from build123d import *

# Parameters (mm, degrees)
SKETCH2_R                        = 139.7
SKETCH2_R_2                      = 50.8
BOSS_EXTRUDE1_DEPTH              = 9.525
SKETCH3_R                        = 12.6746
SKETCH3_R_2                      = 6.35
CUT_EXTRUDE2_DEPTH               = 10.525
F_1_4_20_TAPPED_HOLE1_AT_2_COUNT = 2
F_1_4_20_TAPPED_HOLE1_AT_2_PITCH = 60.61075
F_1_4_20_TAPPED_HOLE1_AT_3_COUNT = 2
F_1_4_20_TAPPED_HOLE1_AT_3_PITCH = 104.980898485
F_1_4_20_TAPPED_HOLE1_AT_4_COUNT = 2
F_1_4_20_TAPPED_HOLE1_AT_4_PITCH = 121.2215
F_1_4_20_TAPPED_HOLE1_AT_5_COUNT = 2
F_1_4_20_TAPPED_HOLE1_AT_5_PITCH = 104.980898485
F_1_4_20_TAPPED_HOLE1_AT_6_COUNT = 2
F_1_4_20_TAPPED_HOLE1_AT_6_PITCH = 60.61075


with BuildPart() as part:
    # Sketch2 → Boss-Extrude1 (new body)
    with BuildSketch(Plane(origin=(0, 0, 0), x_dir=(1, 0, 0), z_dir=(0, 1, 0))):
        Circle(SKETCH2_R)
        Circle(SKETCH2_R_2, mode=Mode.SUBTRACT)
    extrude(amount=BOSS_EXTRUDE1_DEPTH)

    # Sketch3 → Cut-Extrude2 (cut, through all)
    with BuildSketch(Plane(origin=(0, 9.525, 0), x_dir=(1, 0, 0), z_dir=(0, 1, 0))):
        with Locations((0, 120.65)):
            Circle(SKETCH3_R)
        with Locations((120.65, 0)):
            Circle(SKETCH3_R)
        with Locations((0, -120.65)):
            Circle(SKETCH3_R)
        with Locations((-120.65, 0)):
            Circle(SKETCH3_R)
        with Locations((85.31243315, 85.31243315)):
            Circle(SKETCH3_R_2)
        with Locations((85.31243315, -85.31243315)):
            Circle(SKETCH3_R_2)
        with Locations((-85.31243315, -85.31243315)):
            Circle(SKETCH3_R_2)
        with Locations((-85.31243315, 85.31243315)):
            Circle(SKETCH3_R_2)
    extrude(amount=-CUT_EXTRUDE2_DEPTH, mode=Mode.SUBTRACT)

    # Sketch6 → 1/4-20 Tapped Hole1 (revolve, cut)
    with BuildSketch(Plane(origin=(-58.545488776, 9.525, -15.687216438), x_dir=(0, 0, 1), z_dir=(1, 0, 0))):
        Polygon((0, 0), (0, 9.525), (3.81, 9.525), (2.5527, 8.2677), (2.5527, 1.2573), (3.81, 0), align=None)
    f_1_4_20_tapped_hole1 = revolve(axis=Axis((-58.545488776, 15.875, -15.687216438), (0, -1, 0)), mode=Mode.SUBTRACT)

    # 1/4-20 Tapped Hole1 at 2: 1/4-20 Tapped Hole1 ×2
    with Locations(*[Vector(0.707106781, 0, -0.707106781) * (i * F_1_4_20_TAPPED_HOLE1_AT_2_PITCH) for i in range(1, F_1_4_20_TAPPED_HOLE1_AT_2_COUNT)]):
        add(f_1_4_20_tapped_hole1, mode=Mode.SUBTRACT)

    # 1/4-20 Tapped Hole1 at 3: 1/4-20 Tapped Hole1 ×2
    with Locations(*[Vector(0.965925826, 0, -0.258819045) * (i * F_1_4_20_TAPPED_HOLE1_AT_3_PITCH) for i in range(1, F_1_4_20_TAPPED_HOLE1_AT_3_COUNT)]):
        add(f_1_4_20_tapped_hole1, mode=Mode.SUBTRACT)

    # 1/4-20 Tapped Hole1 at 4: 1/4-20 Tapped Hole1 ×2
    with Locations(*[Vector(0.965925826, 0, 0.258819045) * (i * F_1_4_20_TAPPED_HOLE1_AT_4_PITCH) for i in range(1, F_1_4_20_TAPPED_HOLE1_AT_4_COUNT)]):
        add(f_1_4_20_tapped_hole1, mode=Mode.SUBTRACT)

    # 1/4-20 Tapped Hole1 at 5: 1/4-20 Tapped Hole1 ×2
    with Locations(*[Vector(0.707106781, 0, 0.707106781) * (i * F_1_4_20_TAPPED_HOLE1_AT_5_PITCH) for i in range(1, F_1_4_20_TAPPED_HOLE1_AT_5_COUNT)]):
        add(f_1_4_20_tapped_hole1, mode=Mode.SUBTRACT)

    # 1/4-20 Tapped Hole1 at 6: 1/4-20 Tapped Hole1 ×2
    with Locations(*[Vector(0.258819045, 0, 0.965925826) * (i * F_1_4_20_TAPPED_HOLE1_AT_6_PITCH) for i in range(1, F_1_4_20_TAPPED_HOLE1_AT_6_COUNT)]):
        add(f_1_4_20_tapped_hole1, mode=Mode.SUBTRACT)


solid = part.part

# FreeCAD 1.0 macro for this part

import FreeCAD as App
import Part
import Sketcher

V = App.Vector
Q = App.Units.Quantity


def add_polygon(sketch, points):
    """Adds a closed chain of lines whose ends are joined by coincident constraints."""
    first, n = sketch.GeometryCount, len(points)
    for a, b in zip(points, points[1:] + points[:1]):
        sketch.addGeometry(Part.LineSegment(App.Vector(*a, 0), App.Vector(*b, 0)), False)
    for i in range(n):
        sketch.addConstraint(Sketcher.Constraint("Coincident", first + i, 2, first + (i + 1) % n, 1))

doc = App.newDocument("Part")
body = doc.addObject("PartDesign::Body", "Body")

# Sketch on XZ plane
sketch1 = body.newObject("Sketcher::SketchObject", "Sketch")
sketch1.AttachmentSupport = (doc.getObject("XZ_Plane"), [""])
sketch1.MapMode = "FlatFace"
sketch1.addGeometry(Part.Circle(V(0, 0, 0), V(0, 0, 1), 140), False)
sketch1.addGeometry(Part.Circle(V(0, 0, 0), V(0, 0, 1), 51), False)
sketch1.addConstraint(Sketcher.Constraint("Coincident", 0, 3, -1, 1))
sketch1.addConstraint(Sketcher.Constraint("Coincident", 1, 3, -1, 1))
sketch1.addConstraint(Sketcher.Constraint("Diameter", 0, Q("11 in")))
sketch1.addConstraint(Sketcher.Constraint("Diameter", 1, Q("4 in")))
pad1 = body.newObject("PartDesign::Pad", "Pad")
pad1.Profile = sketch1
pad1.Length = Q("0.375 in")
pad1.Reversed = True

# Sketch on XZ plane
sketch2 = body.newObject("Sketcher::SketchObject", "Sketch001")
sketch2.AttachmentSupport = (doc.getObject("XZ_Plane"), [""])
sketch2.MapMode = "FlatFace"
sketch2.AttachmentOffset = App.Placement(V(0, 0, -0.375 * 25.4), App.Rotation())
sketch2.addGeometry(Part.Circle(V(0, -121, 0), V(0, 0, 1), 13), False)
sketch2.addGeometry(Part.Circle(V(121, 0, 0), V(0, 0, 1), 13), False)
sketch2.addGeometry(Part.Circle(V(0, 121, 0), V(0, 0, 1), 13), False)
sketch2.addGeometry(Part.Circle(V(-121, 0, 0), V(0, 0, 1), 13), False)
sketch2.addGeometry(Part.Circle(V(85, -85, 0), V(0, 0, 1), 6), False)
sketch2.addGeometry(Part.Circle(V(85, 85, 0), V(0, 0, 1), 6), False)
sketch2.addGeometry(Part.Circle(V(-85, 85, 0), V(0, 0, 1), 6), False)
sketch2.addGeometry(Part.Circle(V(-85, -85, 0), V(0, 0, 1), 6), False)
sketch2.addConstraint(Sketcher.Constraint("Equal", 0, 1))
sketch2.addConstraint(Sketcher.Constraint("Equal", 1, 2))
sketch2.addConstraint(Sketcher.Constraint("Equal", 2, 3))
sketch2.addConstraint(Sketcher.Constraint("Equal", 4, 5))
sketch2.addConstraint(Sketcher.Constraint("Equal", 5, 6))
sketch2.addConstraint(Sketcher.Constraint("Equal", 6, 7))
sketch2.addConstraint(Sketcher.Constraint("Symmetric", 0, 3, 2, 3, -1, 1))
sketch2.addConstraint(Sketcher.Constraint("Symmetric", 1, 3, 3, 3, -1, 1))
sketch2.addConstraint(Sketcher.Constraint("Symmetric", 4, 3, 6, 3, -1, 1))
sketch2.addConstraint(Sketcher.Constraint("Symmetric", 5, 3, 7, 3, -1, 1))
sketch2.addConstraint(Sketcher.Constraint("Symmetric", 5, 3, 6, 3, -2))
sketch2.addConstraint(Sketcher.Constraint("PointOnObject", 0, 3, -2))
sketch2.addConstraint(Sketcher.Constraint("PointOnObject", 1, 3, -1))
sketch2.addConstraint(Sketcher.Constraint("Diameter", 4, Q("0.5 in")))
sketch2.addConstraint(Sketcher.Constraint("Diameter", 0, Q("0.998 in")))
sketch2.addConstraint(Sketcher.Constraint("DistanceY", 0, 3, 2, 3, Q("9.5 in")))
sketch2.addConstraint(Sketcher.Constraint("DistanceX", 3, 3, 1, 3, Q("9.5 in")))
sketch2.addConstraint(Sketcher.Constraint("DistanceX", -1, 1, 4, 3, 85.312433))
sketch2.addConstraint(Sketcher.Constraint("DistanceY", 4, 3, -1, 1, 85.312433))
pocket1 = body.newObject("PartDesign::Pocket", "Pocket")
pocket1.Profile = sketch2
pocket1.Type = "ThroughAll"
pocket1.Reversed = True

# Sketch on YZ plane
sketch3 = body.newObject("Sketcher::SketchObject", "Sketch002")
sketch3.AttachmentSupport = (doc.getObject("YZ_Plane"), [""])
sketch3.MapMode = "FlatFace"
sketch3.AttachmentOffset = App.Placement(V(0, 0, -58.545489), App.Rotation())
add_polygon(sketch3, [(0, -15.7), (9.5, -15.7), (9.5, -11.9), (8.3, -13.1), (1.3, -13.1), (0, -11.9)])  # lines 0-5
sketch3.addGeometry(Part.LineSegment(V(9.5, -15.7, 0), V(0, -15.7, 0)), True)  # axis
sketch3.addConstraint(Sketcher.Constraint("Horizontal", 0))
sketch3.addConstraint(Sketcher.Constraint("Vertical", 1))
sketch3.addConstraint(Sketcher.Constraint("Horizontal", 3))
sketch3.addConstraint(Sketcher.Constraint("Vertical", 5))
sketch3.addConstraint(Sketcher.Constraint("Horizontal", 6))
sketch3.addConstraint(Sketcher.Constraint("Coincident", 6, 1, 0, 2))
sketch3.addConstraint(Sketcher.Constraint("PointOnObject", 4, 2, -2))
sketch3.addConstraint(Sketcher.Constraint("PointOnObject", 6, 2, -2))
sketch3.addConstraint(Sketcher.Constraint("Perpendicular", 2, 4))
sketch3.addConstraint(Sketcher.Constraint("Horizontal", 1, 2, 4, 2))
sketch3.addConstraint(Sketcher.Constraint("Equal", 2, 4))
sketch3.addConstraint(Sketcher.Constraint("DistanceY", 1, 1, 1, 2, Q("0.15 in")))
sketch3.addConstraint(Sketcher.Constraint("DistanceX", 0, 1, 0, 2, Q("0.375 in")))
sketch3.addConstraint(Sketcher.Constraint("DistanceX", 3, 2, 3, 1, Q("0.276 in")))
sketch3.addConstraint(Sketcher.Constraint("DistanceY", 0, 2, -1, 1, 15.687216))
groove = body.newObject("PartDesign::Groove", "Groove")
groove.Profile = sketch3
groove.ReferenceAxis = (sketch3, ["Axis0"])
groove.Angle = 360
doc.recompute()

datumline = body.newObject("PartDesign::Line", "DatumLine")
datumline.Placement = App.Placement(V(0, 0, 0), App.Rotation(V(0, 0, 1), V(0.707106781, 0, -0.707106781)))
linearpattern = body.newObject("PartDesign::LinearPattern", "LinearPattern")
linearpattern.Originals = [groove]
linearpattern.Direction = (datumline, [""])
linearpattern.Mode = "offset"
linearpattern.Offset = 60.61075
linearpattern.Occurrences = 2
body.Tip = linearpattern
doc.recompute()

datumline2 = body.newObject("PartDesign::Line", "DatumLine001")
datumline2.Placement = App.Placement(V(0, 0, 0), App.Rotation(V(0, 0, 1), V(0.965925826, 0, -0.258819045)))
linearpattern2 = body.newObject("PartDesign::LinearPattern", "LinearPattern001")
linearpattern2.Originals = [groove]
linearpattern2.Direction = (datumline2, [""])
linearpattern2.Mode = "offset"
linearpattern2.Offset = 104.980898
linearpattern2.Occurrences = 2
body.Tip = linearpattern2
doc.recompute()

datumline3 = body.newObject("PartDesign::Line", "DatumLine002")
datumline3.Placement = App.Placement(V(0, 0, 0), App.Rotation(V(0, 0, 1), V(0.965925826, 0, 0.258819045)))
linearpattern3 = body.newObject("PartDesign::LinearPattern", "LinearPattern002")
linearpattern3.Originals = [groove]
linearpattern3.Direction = (datumline3, [""])
linearpattern3.Mode = "offset"
linearpattern3.Offset = Q("4.7725 in")
linearpattern3.Occurrences = 2
body.Tip = linearpattern3
doc.recompute()

datumline4 = body.newObject("PartDesign::Line", "DatumLine003")
datumline4.Placement = App.Placement(V(0, 0, 0), App.Rotation(V(0, 0, 1), V(0.707106781, 0, 0.707106781)))
linearpattern4 = body.newObject("PartDesign::LinearPattern", "LinearPattern003")
linearpattern4.Originals = [groove]
linearpattern4.Direction = (datumline4, [""])
linearpattern4.Mode = "offset"
linearpattern4.Offset = 104.980898
linearpattern4.Occurrences = 2
body.Tip = linearpattern4
doc.recompute()

datumline5 = body.newObject("PartDesign::Line", "DatumLine004")
datumline5.Placement = App.Placement(V(0, 0, 0), App.Rotation(V(0, 0, 1), V(0.258819045, 0, 0.965925826)))
linearpattern5 = body.newObject("PartDesign::LinearPattern", "LinearPattern004")
linearpattern5.Originals = [groove]
linearpattern5.Direction = (datumline5, [""])
linearpattern5.Mode = "offset"
linearpattern5.Offset = 60.61075
linearpattern5.Occurrences = 2
body.Tip = linearpattern5

doc.recompute()
